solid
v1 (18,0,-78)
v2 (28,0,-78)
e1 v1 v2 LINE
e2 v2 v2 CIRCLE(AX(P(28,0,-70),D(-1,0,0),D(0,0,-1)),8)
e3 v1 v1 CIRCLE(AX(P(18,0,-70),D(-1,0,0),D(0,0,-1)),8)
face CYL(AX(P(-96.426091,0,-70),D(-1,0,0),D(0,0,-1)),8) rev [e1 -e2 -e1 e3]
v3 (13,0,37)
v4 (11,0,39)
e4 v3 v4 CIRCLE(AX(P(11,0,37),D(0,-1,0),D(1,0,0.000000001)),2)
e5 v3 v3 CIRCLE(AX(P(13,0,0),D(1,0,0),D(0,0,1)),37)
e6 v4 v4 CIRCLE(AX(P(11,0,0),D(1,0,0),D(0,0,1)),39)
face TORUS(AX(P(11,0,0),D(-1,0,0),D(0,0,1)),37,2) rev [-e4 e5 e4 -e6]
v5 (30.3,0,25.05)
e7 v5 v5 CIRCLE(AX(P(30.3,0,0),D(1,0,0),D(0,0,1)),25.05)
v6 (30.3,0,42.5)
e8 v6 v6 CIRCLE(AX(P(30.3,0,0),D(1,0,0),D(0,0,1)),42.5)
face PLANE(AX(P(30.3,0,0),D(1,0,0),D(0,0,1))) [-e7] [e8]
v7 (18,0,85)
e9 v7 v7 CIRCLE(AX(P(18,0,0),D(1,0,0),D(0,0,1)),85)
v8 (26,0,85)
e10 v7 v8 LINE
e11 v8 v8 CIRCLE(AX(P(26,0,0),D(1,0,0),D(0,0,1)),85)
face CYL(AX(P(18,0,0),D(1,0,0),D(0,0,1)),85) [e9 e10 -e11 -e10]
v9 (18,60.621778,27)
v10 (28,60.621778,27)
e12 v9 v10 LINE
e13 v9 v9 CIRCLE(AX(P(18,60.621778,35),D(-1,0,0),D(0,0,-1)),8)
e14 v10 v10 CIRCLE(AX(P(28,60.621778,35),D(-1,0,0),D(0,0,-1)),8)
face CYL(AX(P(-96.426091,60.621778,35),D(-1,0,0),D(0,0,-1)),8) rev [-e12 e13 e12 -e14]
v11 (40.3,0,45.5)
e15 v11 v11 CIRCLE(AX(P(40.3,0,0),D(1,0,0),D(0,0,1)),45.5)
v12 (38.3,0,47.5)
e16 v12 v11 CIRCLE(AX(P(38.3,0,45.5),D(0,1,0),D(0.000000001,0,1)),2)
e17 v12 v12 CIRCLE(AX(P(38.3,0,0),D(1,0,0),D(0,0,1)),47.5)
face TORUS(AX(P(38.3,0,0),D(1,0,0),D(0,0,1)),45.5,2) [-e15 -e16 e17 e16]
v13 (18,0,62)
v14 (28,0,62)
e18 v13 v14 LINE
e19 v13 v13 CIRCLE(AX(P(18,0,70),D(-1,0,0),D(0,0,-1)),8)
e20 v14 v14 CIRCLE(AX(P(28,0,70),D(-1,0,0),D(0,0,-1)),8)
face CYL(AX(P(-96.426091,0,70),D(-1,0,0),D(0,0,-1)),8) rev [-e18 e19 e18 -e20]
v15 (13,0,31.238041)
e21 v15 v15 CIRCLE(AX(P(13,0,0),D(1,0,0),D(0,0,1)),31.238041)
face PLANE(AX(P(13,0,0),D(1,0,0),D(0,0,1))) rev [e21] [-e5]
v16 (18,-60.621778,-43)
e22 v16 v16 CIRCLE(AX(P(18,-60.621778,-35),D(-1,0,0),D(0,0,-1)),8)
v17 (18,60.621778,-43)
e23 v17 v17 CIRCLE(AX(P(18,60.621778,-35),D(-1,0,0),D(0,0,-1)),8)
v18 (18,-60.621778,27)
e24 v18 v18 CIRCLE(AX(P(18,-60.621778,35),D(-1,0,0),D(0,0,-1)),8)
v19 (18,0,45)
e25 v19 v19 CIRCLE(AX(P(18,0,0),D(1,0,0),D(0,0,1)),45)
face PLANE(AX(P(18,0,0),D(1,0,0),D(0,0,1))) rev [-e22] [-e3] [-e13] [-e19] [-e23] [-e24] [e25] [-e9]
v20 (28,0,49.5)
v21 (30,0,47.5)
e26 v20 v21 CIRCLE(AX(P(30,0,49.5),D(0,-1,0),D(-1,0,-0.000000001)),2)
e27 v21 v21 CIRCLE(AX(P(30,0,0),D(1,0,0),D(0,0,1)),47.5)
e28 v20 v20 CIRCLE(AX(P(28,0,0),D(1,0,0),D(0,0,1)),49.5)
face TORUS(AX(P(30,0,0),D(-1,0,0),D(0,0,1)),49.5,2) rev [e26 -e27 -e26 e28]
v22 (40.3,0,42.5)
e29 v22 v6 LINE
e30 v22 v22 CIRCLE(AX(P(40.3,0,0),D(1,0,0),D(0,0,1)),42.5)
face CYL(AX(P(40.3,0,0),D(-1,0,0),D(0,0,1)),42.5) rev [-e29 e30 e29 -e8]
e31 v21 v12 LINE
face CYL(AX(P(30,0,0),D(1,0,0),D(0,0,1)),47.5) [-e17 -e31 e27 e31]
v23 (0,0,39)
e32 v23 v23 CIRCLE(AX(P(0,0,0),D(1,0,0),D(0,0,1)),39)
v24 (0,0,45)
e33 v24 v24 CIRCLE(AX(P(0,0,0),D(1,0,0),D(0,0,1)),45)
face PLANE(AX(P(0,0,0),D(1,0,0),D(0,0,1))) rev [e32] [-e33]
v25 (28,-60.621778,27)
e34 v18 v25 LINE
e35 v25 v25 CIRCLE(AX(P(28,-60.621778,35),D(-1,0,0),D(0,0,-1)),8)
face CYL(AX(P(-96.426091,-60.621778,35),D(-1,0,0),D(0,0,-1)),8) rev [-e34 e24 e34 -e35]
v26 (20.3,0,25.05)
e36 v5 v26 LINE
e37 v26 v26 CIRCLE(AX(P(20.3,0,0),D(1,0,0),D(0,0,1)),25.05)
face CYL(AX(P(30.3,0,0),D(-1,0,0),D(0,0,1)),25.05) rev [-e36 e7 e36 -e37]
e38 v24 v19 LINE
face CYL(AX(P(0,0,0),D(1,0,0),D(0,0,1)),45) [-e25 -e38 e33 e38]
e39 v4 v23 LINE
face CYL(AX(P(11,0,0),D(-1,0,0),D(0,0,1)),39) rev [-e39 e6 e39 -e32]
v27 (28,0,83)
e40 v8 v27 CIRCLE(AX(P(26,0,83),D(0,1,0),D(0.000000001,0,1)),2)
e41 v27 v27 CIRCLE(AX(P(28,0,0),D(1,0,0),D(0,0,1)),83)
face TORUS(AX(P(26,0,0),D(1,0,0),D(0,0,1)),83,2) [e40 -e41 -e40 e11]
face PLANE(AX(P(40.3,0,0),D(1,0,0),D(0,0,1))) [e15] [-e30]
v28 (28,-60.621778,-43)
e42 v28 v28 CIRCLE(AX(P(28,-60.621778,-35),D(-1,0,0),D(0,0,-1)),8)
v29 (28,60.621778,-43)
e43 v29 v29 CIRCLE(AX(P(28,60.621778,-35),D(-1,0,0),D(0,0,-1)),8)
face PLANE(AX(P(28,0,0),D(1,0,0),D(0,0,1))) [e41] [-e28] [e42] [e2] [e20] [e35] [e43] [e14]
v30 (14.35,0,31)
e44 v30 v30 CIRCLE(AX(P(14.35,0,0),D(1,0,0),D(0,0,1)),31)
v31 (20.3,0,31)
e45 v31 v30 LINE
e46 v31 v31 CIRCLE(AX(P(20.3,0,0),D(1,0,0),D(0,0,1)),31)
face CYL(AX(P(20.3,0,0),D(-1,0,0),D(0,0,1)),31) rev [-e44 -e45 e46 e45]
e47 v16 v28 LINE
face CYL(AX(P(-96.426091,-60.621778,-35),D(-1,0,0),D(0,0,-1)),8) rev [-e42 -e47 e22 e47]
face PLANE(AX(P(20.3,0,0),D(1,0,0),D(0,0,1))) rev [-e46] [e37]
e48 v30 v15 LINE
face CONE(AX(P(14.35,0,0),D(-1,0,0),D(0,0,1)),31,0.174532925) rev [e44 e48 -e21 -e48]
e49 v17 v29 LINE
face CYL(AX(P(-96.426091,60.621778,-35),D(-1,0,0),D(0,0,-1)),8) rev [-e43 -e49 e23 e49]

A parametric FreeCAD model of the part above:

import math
import FreeCAD as App
import Part
import Sketcher
Q = App.Units.Quantity

doc = App.newDocument("Part")
params = doc.addObject("Spreadsheet::Sheet", "Params")
for row, (alias, value) in enumerate([
    ("sketch1_radius", "2 mm"),
    ("sketch1_width", "18 mm"),
    ("sketch1_width2", "11 mm"),
    ("sketch1_width3", "10 mm"),
    ("sketch1_width4", "8 mm"),
    ("revolution_angle", "360 deg"),
    ("sketch2_diameter", "16 mm"),
], start=1):
    params.set(f"A{row}", alias)
    params.set(f"B{row}", "=" + value)
    params.setAlias(f"B{row}", alias)

body = doc.addObject("PartDesign::Body", "Body")

sketch1 = doc.addObject("Sketcher::SketchObject", "Sketch")
body.addObject(sketch1)
sketch1.AttachmentSupport = (doc.XY_Plane, [""])
sketch1.MapMode = "FlatFace"
sketch1.addGeometry([
    Part.LineSegment(App.Vector(18, 45, 0), App.Vector(0, 45, 0)),
    Part.LineSegment(App.Vector(0, 45, 0), App.Vector(0, 39, 0)),
    Part.LineSegment(App.Vector(0, 39, 0), App.Vector(11, 39, 0)),
    Part.ArcOfCircle(Part.Circle(App.Vector(11, 37, 0), App.Vector(0, 0, 1), 2), math.radians(0), math.radians(90)),
    Part.LineSegment(App.Vector(13, 37, 0), App.Vector(13, 31.2, 0)),
    Part.LineSegment(App.Vector(13, 31.2, 0), App.Vector(14.3, 31, 0)),
    Part.LineSegment(App.Vector(14.3, 31, 0), App.Vector(20.3, 31, 0)),
    Part.LineSegment(App.Vector(20.3, 31, 0), App.Vector(20.3, 25.1, 0)),
    Part.LineSegment(App.Vector(20.3, 25.1, 0), App.Vector(30.3, 25.1, 0)),
    Part.LineSegment(App.Vector(30.3, 25.1, 0), App.Vector(30.3, 42.5, 0)),
    Part.LineSegment(App.Vector(30.3, 42.5, 0), App.Vector(40.3, 42.5, 0)),
    Part.LineSegment(App.Vector(40.3, 42.5, 0), App.Vector(40.3, 45.5, 0)),
    Part.ArcOfCircle(Part.Circle(App.Vector(38.3, 45.5, 0), App.Vector(0, 0, 1), 2), math.radians(0), math.radians(90)),
    Part.LineSegment(App.Vector(38.3, 47.5, 0), App.Vector(30, 47.5, 0)),
    Part.ArcOfCircle(Part.Circle(App.Vector(30, 49.5, 0), App.Vector(0, 0, 1), 2), math.radians(-180), math.radians(-90)),
    Part.LineSegment(App.Vector(28, 49.5, 0), App.Vector(28, 83, 0)),
    Part.ArcOfCircle(Part.Circle(App.Vector(26, 83, 0), App.Vector(0, 0, 1), 2), math.radians(0), math.radians(90)),
    Part.LineSegment(App.Vector(26, 85, 0), App.Vector(18, 85, 0)),
    Part.LineSegment(App.Vector(18, 85, 0), App.Vector(18, 45, 0)),
], False)
sketch1.addConstraint([
    Sketcher.Constraint("Coincident", 0, 2, 1, 1),
    Sketcher.Constraint("Coincident", 1, 2, 2, 1),
    Sketcher.Constraint("Tangent", 2, 2, 3, 2),
    Sketcher.Constraint("Tangent", 3, 1, 4, 1),
    Sketcher.Constraint("Coincident", 4, 2, 5, 1),
    Sketcher.Constraint("Coincident", 5, 2, 6, 1),
    Sketcher.Constraint("Coincident", 6, 2, 7, 1),
    Sketcher.Constraint("Coincident", 7, 2, 8, 1),
    Sketcher.Constraint("Coincident", 8, 2, 9, 1),
    Sketcher.Constraint("Coincident", 9, 2, 10, 1),
    Sketcher.Constraint("Coincident", 10, 2, 11, 1),
    Sketcher.Constraint("Tangent", 11, 2, 12, 1),
    Sketcher.Constraint("Tangent", 12, 2, 13, 1),
    Sketcher.Constraint("Tangent", 13, 2, 14, 2),
    Sketcher.Constraint("Tangent", 14, 1, 15, 1),
    Sketcher.Constraint("Tangent", 15, 2, 16, 1),
    Sketcher.Constraint("Tangent", 16, 2, 17, 1),
    Sketcher.Constraint("Coincident", 17, 2, 18, 1),
    Sketcher.Constraint("Coincident", 18, 2, 0, 1),
    Sketcher.Constraint("Horizontal", 0),
    Sketcher.Constraint("Vertical", 1),
    Sketcher.Constraint("Horizontal", 2),
    Sketcher.Constraint("Vertical", 4),
    Sketcher.Constraint("Horizontal", 6),
    Sketcher.Constraint("Vertical", 7),
    Sketcher.Constraint("Horizontal", 8),
    Sketcher.Constraint("Vertical", 9),
    Sketcher.Constraint("Horizontal", 10),
    Sketcher.Constraint("Vertical", 11),
    Sketcher.Constraint("Horizontal", 13),
    Sketcher.Constraint("Vertical", 15),
    Sketcher.Constraint("Horizontal", 17),
    Sketcher.Constraint("Vertical", 18),
    Sketcher.Constraint("Equal", 3, 12),
    Sketcher.Constraint("Equal", 12, 14),
    Sketcher.Constraint("Equal", 14, 16),
    Sketcher.Constraint("PointOnObject", 0, 2, -2),
    Sketcher.Constraint("Equal", 8, 10),
    Sketcher.Constraint("Equal", 6, 7),
    Sketcher.Constraint("Radius", 3, Q("2 mm")),
    Sketcher.Constraint("DistanceX", 0, 2, 0, 1, Q("18 mm")),
    Sketcher.Constraint("DistanceX", 2, 1, 2, 2, Q("11 mm")),
    Sketcher.Constraint("DistanceX", 8, 1, 8, 2, Q("10 mm")),
    Sketcher.Constraint("DistanceX", 17, 2, 17, 1, Q("8 mm")),
    Sketcher.Constraint("DistanceY", 1, 2, 1, 1, Q("6 mm")),
    Sketcher.Constraint("DistanceY", 11, 1, 11, 2, Q("3 mm")),
    Sketcher.Constraint("DistanceY", 18, 2, 18, 1, Q("40 mm")),
    Sketcher.Constraint("Angle", 5, Q("-10 deg")),
    Sketcher.Constraint("DistanceX", 13, 2, 13, 1, Q("8.3 mm")),
    Sketcher.Constraint("DistanceY", 15, 1, 15, 2, Q("33.5 mm")),
    Sketcher.Constraint("DistanceY", -1, 1, 3, 3, Q("37 mm")),
    Sketcher.Constraint("DistanceY", -1, 1, 5, 2, Q("31 mm")),
    Sketcher.Constraint("DistanceX", 6, 1, 6, 2, Q("5.95 mm")),
])
sketch1.setExpression("Constraints[39]", "Params.sketch1_radius")
sketch1.setExpression("Constraints[40]", "Params.sketch1_width")
sketch1.setExpression("Constraints[41]", "Params.sketch1_width2")
sketch1.setExpression("Constraints[42]", "Params.sketch1_width3")
sketch1.setExpression("Constraints[43]", "Params.sketch1_width4")
revolution = doc.addObject("PartDesign::Revolution", "Revolution")
body.addObject(revolution)
revolution.Profile = sketch1
revolution.ReferenceAxis = (sketch1, ["H_Axis"])
revolution.setExpression("Angle", "Params.revolution_angle")

sketch2 = doc.addObject("Sketcher::SketchObject", "Sketch001")
body.addObject(sketch2)
sketch2.AttachmentSupport = (doc.YZ_Plane, [""])
sketch2.MapMode = "FlatFace"
sketch2.AttachmentOffset = App.Placement(App.Vector(0, 0, 28), App.Rotation())
sketch2.addGeometry([
    Part.Circle(App.Vector(0, -70, 0), App.Vector(0, 0, 1), 8),
    Part.Circle(App.Vector(-61, -35, 0), App.Vector(0, 0, 1), 8),
    Part.Circle(App.Vector(-61, 35, 0), App.Vector(0, 0, 1), 8),
    Part.Circle(App.Vector(0, 70, 0), App.Vector(0, 0, 1), 8),
    Part.Circle(App.Vector(61, 35, 0), App.Vector(0, 0, 1), 8),
    Part.Circle(App.Vector(61, -35, 0), App.Vector(0, 0, 1), 8),
], False)
sketch2.addConstraint([
    Sketcher.Constraint("Equal", 0, 1),
    Sketcher.Constraint("Equal", 1, 2),
    Sketcher.Constraint("Equal", 2, 3),
    Sketcher.Constraint("Equal", 3, 4),
    Sketcher.Constraint("Equal", 4, 5),
    Sketcher.Constraint("Symmetric", 0, 3, 3, 3, -1, 1),
    Sketcher.Constraint("Symmetric", 1, 3, 4, 3, -1, 1),
    Sketcher.Constraint("Symmetric", 2, 3, 5, 3, -1, 1),
    Sketcher.Constraint("Symmetric", 2, 3, 4, 3, -2),
    Sketcher.Constraint("PointOnObject", 0, 3, -2),
    Sketcher.Constraint("Diameter", 0, Q("16 mm")),
    Sketcher.Constraint("DistanceY", 0, 3, -1, 1, Q("70 mm")),
    Sketcher.Constraint("DistanceY", 1, 3, -1, 1, Q("35 mm")),
    Sketcher.Constraint("DistanceX", 1, 3, -1, 1, Q("60.621778 mm")),
])
sketch2.setExpression("Constraints[10]", "Params.sketch2_diameter")
pocket1 = doc.addObject("PartDesign::Pocket", "Pocket")
body.addObject(pocket1)
pocket1.Profile = sketch2
pocket1.Type = "ThroughAll"
pocket1.Midplane = True

doc.recompute()
